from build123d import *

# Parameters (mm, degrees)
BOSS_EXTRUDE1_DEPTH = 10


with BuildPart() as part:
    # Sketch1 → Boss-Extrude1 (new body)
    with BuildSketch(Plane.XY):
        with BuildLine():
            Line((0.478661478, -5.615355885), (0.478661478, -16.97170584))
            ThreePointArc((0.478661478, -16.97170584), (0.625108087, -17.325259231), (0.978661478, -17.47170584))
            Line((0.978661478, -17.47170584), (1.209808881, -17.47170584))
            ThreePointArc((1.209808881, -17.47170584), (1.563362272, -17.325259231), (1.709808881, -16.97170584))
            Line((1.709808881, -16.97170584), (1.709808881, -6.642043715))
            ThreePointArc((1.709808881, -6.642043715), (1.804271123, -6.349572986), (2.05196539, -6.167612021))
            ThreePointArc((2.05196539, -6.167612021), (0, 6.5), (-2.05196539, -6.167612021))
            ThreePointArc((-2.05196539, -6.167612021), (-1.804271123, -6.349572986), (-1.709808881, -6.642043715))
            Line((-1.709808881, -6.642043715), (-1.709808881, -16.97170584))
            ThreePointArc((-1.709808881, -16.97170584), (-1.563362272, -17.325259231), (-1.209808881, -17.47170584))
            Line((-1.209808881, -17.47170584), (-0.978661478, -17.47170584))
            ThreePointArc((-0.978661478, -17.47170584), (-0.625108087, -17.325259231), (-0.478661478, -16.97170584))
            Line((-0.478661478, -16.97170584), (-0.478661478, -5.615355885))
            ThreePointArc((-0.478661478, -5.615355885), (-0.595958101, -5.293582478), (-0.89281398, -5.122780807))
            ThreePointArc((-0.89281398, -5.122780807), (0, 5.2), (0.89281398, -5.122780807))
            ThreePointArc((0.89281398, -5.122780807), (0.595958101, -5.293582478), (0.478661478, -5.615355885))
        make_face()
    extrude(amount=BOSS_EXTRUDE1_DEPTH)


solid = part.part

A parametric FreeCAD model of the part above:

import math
import FreeCAD as App
import Part
import Sketcher
from FreeCAD import Vector
Q = App.Units.Quantity

doc = App.newDocument("Part")
body = doc.addObject("PartDesign::Body", "Body")

sketch1 = doc.addObject("Sketcher::SketchObject", "Sketch")
body.addObject(sketch1)
sketch1.AttachmentSupport = (doc.XY_Plane, [""])
sketch1.MapMode = "FlatFace"
sketch1.addGeometry(Part.LineSegment(Vector(0.478661, -5.615356, 0), Vector(0.478661, -16.971706, 0)), False)
sketch1.addGeometry(Part.ArcOfCircle(Part.Circle(Vector(0.978661, -16.971706, 0), Vector(0, 0, 1), 0.5), math.radians(180), math.radians(270)), False)
sketch1.addGeometry(Part.LineSegment(Vector(0.978661, -17.471706, 0), Vector(1.209809, -17.471706, 0)), False)
sketch1.addGeometry(Part.ArcOfCircle(Part.Circle(Vector(1.209809, -16.971706, 0), Vector(0, 0, 1), 0.5), math.radians(-90), math.radians(0)), False)
sketch1.addGeometry(Part.LineSegment(Vector(1.709809, -16.971706, 0), Vector(1.709809, -6.642044, 0)), False)
sketch1.addGeometry(Part.ArcOfCircle(Part.Circle(Vector(2.209809, -6.642044, 0), Vector(0, 0, 1), 0.5), math.radians(108.402291), math.radians(180)), False)
sketch1.addGeometry(Part.ArcOfCircle(Part.Circle(Vector(0, 0, 0), Vector(0, 0, 1), 6.5), math.radians(-71.597709), math.radians(251.597709)), False)
sketch1.addGeometry(Part.ArcOfCircle(Part.Circle(Vector(-2.209809, -6.642044, 0), Vector(0, 0, 1), 0.5), math.radians(0), math.radians(71.597709)), False)
sketch1.addGeometry(Part.LineSegment(Vector(-1.709809, -6.642044, 0), Vector(-1.709809, -16.971706, 0)), False)
sketch1.addGeometry(Part.ArcOfCircle(Part.Circle(Vector(-1.209809, -16.971706, 0), Vector(0, 0, 1), 0.5), math.radians(180), math.radians(270)), False)
sketch1.addGeometry(Part.LineSegment(Vector(-1.209809, -17.471706, 0), Vector(-0.978661, -17.471706, 0)), False)
sketch1.addGeometry(Part.ArcOfCircle(Part.Circle(Vector(-0.978661, -16.971706, 0), Vector(0, 0, 1), 0.5), math.radians(-90), math.radians(0)), False)
sketch1.addGeometry(Part.LineSegment(Vector(-0.478661, -16.971706, 0), Vector(-0.478661, -5.615356, 0)), False)
sketch1.addGeometry(Part.ArcOfCircle(Part.Circle(Vector(-0.978661, -5.615356, 0), Vector(0, 0, 1), 0.5), math.radians(0), math.radians(80.113616)), False)
sketch1.addGeometry(Part.ArcOfCircle(Part.Circle(Vector(0, 0, 0), Vector(0, 0, 1), 5.2), math.radians(-80.113616), math.radians(260.113616)), False)
sketch1.addGeometry(Part.ArcOfCircle(Part.Circle(Vector(0.978661, -5.615356, 0), Vector(0, 0, 1), 0.5), math.radians(99.886384), math.radians(180)), False)
sketch1.addConstraint(Sketcher.Constraint("Tangent", 0, 2, 1, 1))
sketch1.addConstraint(Sketcher.Constraint("Tangent", 1, 2, 2, 1))
sketch1.addConstraint(Sketcher.Constraint("Tangent", 2, 2, 3, 1))
sketch1.addConstraint(Sketcher.Constraint("Tangent", 3, 2, 4, 1))
sketch1.addConstraint(Sketcher.Constraint("Tangent", 4, 2, 5, 2))
sketch1.addConstraint(Sketcher.Constraint("Tangent", 5, 1, 6, 1))
sketch1.addConstraint(Sketcher.Constraint("Tangent", 6, 2, 7, 2))
sketch1.addConstraint(Sketcher.Constraint("Tangent", 7, 1, 8, 1))
sketch1.addConstraint(Sketcher.Constraint("Tangent", 8, 2, 9, 1))
sketch1.addConstraint(Sketcher.Constraint("Tangent", 9, 2, 10, 1))
sketch1.addConstraint(Sketcher.Constraint("Tangent", 10, 2, 11, 1))
sketch1.addConstraint(Sketcher.Constraint("Tangent", 11, 2, 12, 1))
sketch1.addConstraint(Sketcher.Constraint("Tangent", 12, 2, 13, 1))
sketch1.addConstraint(Sketcher.Constraint("Tangent", 13, 2, 14, 2))
sketch1.addConstraint(Sketcher.Constraint("Tangent", 14, 1, 15, 1))
sketch1.addConstraint(Sketcher.Constraint("Tangent", 15, 2, 0, 1))
sketch1.addConstraint(Sketcher.Constraint("Vertical", 0))
sketch1.addConstraint(Sketcher.Constraint("Horizontal", 2))
sketch1.addConstraint(Sketcher.Constraint("Vertical", 4))
sketch1.addConstraint(Sketcher.Constraint("Vertical", 8))
sketch1.addConstraint(Sketcher.Constraint("Horizontal", 10))
sketch1.addConstraint(Sketcher.Constraint("Vertical", 12))
sketch1.addConstraint(Sketcher.Constraint("Coincident", 6, 3, -1, 1))
sketch1.addConstraint(Sketcher.Constraint("Coincident", 14, 3, -1, 1))
sketch1.addConstraint(Sketcher.Constraint("Equal", 1, 3))
sketch1.addConstraint(Sketcher.Constraint("Equal", 3, 5))
sketch1.addConstraint(Sketcher.Constraint("Equal", 5, 7))
sketch1.addConstraint(Sketcher.Constraint("Equal", 7, 9))
sketch1.addConstraint(Sketcher.Constraint("Equal", 9, 11))
sketch1.addConstraint(Sketcher.Constraint("Equal", 11, 13))
sketch1.addConstraint(Sketcher.Constraint("Equal", 13, 15))
sketch1.addConstraint(Sketcher.Constraint("Symmetric", 3, 3, 9, 3, -2))
sketch1.addConstraint(Sketcher.Constraint("Horizontal", 13, 3, 15, 3))
sketch1.addConstraint(Sketcher.Constraint("Radius", 1, Q("0.5 mm")))
sketch1.addConstraint(Sketcher.Constraint("Radius", 6, Q("6.5 mm")))
sketch1.addConstraint(Sketcher.Constraint("Radius", 14, Q("5.2 mm")))
sketch1.addConstraint(Sketcher.Constraint("DistanceY", 0, 2, 0, 1, Q("11.35635 mm")))
sketch1.addConstraint(Sketcher.Constraint("DistanceX", 2, 1, 2, 2, Q("0.231147 mm")))
sketch1.addConstraint(Sketcher.Constraint("DistanceY", 4, 1, 4, 2, Q("10.329662 mm")))
pad1 = doc.addObject("PartDesign::Pad", "Pad")
body.addObject(pad1)
pad1.Profile = sketch1
pad1.Length = 10

doc.recompute()
